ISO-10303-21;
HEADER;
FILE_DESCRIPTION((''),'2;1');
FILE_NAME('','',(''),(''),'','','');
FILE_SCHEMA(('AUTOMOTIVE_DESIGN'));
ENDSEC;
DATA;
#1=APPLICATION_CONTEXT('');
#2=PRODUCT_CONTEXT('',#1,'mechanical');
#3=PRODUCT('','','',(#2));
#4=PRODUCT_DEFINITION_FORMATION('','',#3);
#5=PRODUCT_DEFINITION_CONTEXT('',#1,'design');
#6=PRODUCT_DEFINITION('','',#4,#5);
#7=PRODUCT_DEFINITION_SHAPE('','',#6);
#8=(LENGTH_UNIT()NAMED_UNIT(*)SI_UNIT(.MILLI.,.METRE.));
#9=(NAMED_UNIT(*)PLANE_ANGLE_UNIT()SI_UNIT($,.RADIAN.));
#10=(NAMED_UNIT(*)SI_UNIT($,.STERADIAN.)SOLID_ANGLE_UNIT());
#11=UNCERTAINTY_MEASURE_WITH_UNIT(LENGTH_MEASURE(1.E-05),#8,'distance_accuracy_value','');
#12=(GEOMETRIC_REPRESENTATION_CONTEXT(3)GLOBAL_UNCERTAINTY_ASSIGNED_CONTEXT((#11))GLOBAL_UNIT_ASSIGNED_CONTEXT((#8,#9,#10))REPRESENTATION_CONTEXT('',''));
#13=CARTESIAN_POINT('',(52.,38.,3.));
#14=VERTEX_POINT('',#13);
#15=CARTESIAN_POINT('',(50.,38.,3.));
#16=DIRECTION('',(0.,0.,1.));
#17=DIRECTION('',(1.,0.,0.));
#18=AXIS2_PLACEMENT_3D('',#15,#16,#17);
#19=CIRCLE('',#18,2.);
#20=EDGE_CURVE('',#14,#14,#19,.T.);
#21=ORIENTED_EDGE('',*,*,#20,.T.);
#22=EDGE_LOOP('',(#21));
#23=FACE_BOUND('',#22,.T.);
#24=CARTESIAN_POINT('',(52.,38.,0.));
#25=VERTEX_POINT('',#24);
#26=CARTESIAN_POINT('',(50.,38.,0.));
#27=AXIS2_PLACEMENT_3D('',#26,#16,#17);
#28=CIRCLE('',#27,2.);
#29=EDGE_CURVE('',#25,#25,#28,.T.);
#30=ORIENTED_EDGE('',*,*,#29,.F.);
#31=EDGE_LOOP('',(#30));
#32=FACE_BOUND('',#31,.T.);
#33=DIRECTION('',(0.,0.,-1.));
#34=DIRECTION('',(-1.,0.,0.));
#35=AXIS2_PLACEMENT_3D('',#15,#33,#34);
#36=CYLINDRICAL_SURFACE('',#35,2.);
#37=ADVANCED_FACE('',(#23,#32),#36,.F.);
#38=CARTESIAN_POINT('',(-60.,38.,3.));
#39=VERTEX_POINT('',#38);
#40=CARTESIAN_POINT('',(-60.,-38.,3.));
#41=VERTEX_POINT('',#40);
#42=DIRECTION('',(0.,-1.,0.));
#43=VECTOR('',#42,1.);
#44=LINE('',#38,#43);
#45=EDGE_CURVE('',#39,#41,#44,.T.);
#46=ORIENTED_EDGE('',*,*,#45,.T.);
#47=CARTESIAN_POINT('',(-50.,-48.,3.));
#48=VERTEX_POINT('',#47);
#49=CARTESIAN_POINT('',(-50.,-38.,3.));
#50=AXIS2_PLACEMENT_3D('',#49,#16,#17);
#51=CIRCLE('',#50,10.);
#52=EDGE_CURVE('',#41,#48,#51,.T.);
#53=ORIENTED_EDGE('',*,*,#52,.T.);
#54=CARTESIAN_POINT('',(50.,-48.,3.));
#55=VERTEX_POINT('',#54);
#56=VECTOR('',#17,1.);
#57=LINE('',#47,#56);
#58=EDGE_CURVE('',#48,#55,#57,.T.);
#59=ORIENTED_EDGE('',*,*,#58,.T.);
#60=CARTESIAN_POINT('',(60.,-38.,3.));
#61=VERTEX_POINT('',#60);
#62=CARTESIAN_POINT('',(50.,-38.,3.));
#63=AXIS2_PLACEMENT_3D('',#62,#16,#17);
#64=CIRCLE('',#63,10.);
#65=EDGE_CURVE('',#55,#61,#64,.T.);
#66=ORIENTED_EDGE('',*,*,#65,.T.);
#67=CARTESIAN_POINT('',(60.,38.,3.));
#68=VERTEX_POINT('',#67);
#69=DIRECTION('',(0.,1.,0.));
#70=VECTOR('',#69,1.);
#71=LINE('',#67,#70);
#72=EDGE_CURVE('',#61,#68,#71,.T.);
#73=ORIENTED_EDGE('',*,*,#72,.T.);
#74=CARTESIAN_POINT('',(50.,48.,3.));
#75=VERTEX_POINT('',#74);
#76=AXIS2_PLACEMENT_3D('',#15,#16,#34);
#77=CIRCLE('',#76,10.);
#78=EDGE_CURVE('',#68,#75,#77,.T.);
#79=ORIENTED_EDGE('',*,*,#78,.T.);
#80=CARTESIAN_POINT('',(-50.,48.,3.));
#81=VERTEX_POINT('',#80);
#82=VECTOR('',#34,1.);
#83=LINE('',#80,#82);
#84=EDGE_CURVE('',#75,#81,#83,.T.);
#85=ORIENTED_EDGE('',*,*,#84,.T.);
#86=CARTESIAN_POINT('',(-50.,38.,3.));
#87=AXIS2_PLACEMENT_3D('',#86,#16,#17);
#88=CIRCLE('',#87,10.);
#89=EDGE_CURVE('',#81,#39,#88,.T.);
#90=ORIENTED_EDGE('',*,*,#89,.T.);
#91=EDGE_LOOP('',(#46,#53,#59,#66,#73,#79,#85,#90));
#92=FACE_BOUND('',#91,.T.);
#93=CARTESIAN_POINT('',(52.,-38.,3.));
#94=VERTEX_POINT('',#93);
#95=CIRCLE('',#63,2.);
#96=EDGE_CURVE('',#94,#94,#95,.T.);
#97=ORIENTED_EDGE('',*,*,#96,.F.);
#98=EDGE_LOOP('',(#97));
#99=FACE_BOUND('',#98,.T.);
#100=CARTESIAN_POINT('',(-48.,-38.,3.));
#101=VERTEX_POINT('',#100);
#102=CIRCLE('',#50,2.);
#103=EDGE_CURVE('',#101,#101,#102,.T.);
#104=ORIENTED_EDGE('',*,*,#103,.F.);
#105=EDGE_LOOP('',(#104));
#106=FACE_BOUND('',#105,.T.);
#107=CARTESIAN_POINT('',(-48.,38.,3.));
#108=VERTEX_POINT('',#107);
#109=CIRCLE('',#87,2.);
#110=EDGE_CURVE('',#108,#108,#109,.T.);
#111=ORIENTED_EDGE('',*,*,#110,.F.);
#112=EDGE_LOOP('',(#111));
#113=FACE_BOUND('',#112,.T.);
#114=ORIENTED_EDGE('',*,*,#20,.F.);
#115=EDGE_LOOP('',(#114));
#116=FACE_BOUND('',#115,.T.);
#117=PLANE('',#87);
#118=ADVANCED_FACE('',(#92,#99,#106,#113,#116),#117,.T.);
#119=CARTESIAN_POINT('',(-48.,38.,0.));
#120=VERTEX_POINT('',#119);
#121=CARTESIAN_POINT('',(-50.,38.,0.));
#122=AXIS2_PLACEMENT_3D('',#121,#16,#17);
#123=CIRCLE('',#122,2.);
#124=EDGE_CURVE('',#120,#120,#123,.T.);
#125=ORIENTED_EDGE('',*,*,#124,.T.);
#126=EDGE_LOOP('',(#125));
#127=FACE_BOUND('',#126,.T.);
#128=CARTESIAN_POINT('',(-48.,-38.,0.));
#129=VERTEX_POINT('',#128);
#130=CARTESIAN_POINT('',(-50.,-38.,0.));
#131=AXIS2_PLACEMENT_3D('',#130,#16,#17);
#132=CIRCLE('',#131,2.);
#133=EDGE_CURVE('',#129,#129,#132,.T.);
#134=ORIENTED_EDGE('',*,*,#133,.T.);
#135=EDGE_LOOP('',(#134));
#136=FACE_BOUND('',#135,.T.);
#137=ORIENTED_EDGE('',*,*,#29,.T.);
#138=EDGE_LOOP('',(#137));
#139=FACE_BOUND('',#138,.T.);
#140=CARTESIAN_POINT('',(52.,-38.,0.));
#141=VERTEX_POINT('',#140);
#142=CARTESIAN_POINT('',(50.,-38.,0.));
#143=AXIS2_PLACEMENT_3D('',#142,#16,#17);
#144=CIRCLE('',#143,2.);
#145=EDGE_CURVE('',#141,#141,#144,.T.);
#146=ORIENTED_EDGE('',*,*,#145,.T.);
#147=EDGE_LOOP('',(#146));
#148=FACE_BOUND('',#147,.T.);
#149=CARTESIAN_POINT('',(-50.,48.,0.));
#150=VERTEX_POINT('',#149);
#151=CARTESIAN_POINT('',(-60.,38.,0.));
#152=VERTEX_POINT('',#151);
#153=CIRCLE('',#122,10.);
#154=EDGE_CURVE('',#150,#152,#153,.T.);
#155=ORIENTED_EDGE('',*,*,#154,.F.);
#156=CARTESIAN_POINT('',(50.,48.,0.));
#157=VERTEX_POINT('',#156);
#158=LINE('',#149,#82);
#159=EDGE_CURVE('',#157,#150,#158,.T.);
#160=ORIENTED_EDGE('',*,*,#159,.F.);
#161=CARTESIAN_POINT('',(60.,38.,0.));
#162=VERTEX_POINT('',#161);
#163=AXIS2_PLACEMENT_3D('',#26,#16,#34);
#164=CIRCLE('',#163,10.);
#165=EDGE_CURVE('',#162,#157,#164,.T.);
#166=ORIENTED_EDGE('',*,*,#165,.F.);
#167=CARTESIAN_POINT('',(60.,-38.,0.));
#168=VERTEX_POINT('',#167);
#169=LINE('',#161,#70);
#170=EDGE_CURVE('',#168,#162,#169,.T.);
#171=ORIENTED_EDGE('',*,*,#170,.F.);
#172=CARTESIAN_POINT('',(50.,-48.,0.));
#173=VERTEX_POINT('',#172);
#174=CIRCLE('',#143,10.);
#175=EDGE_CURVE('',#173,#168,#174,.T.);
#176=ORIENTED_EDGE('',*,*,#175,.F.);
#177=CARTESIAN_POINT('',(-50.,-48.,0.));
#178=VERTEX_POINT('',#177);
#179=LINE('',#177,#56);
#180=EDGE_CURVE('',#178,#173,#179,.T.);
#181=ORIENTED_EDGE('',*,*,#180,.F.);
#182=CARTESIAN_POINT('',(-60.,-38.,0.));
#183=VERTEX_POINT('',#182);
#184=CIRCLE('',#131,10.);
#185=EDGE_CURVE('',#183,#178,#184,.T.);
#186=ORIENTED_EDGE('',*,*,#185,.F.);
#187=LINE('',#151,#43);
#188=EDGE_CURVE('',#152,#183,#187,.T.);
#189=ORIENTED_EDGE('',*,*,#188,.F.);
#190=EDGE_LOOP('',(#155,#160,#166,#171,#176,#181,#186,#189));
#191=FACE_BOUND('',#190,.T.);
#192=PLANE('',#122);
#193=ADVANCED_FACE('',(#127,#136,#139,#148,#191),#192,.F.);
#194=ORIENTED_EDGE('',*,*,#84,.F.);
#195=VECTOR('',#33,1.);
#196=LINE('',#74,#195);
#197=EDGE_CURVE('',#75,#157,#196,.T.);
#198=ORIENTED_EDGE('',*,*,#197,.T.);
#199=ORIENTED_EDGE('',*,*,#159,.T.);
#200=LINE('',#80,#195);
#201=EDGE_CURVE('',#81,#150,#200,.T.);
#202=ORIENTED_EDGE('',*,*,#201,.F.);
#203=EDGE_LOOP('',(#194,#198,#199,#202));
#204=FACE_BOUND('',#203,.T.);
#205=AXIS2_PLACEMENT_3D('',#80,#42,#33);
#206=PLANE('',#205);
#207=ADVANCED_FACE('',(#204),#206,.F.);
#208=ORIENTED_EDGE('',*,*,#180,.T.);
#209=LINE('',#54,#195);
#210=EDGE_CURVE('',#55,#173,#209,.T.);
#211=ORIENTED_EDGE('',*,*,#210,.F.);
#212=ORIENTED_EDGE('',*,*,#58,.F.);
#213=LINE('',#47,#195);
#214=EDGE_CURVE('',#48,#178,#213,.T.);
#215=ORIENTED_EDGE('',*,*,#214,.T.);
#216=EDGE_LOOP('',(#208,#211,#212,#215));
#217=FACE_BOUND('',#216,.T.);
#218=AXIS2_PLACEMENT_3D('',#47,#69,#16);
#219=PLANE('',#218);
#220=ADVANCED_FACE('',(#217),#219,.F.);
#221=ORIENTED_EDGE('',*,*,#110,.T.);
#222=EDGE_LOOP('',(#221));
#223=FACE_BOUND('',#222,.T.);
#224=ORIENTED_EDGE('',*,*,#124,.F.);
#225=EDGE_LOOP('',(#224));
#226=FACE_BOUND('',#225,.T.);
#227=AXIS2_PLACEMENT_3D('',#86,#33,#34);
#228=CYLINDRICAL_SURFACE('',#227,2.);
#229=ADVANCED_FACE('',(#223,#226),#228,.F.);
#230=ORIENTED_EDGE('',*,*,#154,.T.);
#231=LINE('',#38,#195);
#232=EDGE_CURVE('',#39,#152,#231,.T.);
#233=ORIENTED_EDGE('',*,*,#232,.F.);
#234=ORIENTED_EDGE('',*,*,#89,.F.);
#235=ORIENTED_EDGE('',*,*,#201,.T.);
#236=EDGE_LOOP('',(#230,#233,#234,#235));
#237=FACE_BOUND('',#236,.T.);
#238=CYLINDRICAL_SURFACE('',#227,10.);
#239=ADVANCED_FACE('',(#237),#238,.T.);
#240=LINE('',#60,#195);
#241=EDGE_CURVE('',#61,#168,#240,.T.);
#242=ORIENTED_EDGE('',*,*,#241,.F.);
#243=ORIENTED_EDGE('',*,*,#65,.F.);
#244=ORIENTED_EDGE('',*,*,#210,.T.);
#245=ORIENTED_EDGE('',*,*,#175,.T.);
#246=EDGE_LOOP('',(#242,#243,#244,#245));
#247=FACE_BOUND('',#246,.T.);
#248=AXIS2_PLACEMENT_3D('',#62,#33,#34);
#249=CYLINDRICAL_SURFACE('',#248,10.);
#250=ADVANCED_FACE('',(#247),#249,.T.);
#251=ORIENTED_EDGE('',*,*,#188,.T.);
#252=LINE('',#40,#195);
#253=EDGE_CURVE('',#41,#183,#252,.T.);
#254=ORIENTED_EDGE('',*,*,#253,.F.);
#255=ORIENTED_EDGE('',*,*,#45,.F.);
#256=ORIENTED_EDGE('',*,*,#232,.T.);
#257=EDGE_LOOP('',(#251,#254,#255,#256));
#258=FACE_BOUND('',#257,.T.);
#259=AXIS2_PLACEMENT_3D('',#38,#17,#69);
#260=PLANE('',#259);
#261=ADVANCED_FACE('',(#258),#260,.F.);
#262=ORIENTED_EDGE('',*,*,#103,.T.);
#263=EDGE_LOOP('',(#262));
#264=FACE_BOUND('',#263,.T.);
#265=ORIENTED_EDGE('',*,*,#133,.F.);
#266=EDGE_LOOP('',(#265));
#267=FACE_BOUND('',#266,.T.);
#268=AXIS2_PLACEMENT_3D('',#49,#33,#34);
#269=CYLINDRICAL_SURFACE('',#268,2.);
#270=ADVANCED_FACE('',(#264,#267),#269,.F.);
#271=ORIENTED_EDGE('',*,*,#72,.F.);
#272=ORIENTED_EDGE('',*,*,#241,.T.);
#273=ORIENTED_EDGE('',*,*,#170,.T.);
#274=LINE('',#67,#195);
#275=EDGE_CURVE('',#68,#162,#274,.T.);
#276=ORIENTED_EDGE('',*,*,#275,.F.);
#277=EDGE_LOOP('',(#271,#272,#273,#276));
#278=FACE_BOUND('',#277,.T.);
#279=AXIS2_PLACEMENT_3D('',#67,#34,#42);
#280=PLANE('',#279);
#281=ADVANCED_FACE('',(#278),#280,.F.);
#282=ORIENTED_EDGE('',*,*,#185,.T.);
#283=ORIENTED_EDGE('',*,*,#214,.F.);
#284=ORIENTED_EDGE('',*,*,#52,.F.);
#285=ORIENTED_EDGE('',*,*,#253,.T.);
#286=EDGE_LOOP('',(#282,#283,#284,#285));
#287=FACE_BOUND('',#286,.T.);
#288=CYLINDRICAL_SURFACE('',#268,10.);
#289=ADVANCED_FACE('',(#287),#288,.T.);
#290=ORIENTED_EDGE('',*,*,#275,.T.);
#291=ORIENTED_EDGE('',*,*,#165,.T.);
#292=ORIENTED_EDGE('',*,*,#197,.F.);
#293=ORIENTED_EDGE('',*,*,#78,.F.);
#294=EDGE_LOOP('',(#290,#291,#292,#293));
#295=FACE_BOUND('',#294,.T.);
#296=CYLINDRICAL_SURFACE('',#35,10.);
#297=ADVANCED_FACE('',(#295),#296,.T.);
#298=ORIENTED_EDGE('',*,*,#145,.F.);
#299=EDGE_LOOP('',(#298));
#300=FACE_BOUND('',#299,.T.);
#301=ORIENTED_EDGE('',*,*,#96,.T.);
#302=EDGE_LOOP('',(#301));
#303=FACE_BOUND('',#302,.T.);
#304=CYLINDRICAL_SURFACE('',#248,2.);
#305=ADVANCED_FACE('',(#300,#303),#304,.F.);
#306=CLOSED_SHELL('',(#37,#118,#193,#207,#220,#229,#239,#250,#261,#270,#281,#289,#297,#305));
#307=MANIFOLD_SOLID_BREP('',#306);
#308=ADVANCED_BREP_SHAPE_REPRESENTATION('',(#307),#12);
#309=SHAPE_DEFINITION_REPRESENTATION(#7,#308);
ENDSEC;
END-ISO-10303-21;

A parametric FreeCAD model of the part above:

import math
import FreeCAD as App
import Part
import Sketcher
Q = App.Units.Quantity

doc = App.newDocument("Part")
body = doc.addObject("PartDesign::Body", "Body")

# Sketch on XY plane
sketch1 = body.newObject("Sketcher::SketchObject", "Sketch")
sketch1.AttachmentSupport = (doc.getObject("XY_Plane"), [""])
sketch1.MapMode = "FlatFace"
sketch1.addGeometry([
    Part.LineSegment(App.Vector(50, 48, 0), App.Vector(-50, 48, 0)),  # 0
    Part.ArcOfCircle(Part.Circle(App.Vector(-50, 38, 0), App.Vector(0, 0, 1), 10), math.radians(90), math.radians(180)),  # 1
    Part.LineSegment(App.Vector(-60, 38, 0), App.Vector(-60, -38, 0)),  # 2
    Part.ArcOfCircle(Part.Circle(App.Vector(-50, -38, 0), App.Vector(0, 0, 1), 10), math.radians(180), math.radians(270)),  # 3
    Part.LineSegment(App.Vector(-50, -48, 0), App.Vector(50, -48, 0)),  # 4
    Part.ArcOfCircle(Part.Circle(App.Vector(50, -38, 0), App.Vector(0, 0, 1), 10), math.radians(-90), math.radians(0)),  # 5
    Part.LineSegment(App.Vector(60, -38, 0), App.Vector(60, 38, 0)),  # 6
    Part.ArcOfCircle(Part.Circle(App.Vector(50, 38, 0), App.Vector(0, 0, 1), 10), math.radians(0), math.radians(90)),  # 7
    Part.Circle(App.Vector(50, -38, 0), App.Vector(0, 0, 1), 2),  # 8
    Part.Circle(App.Vector(-50, -38, 0), App.Vector(0, 0, 1), 2),  # 9
    Part.Circle(App.Vector(50, 38, 0), App.Vector(0, 0, 1), 2),  # 10
    Part.Circle(App.Vector(-50, 38, 0), App.Vector(0, 0, 1), 2),  # 11
], False)
sketch1.addConstraint([
    Sketcher.Constraint("Tangent", 0, 2, 1, 1),
    Sketcher.Constraint("Tangent", 1, 2, 2, 1),
    Sketcher.Constraint("Tangent", 2, 2, 3, 1),
    Sketcher.Constraint("Tangent", 3, 2, 4, 1),
    Sketcher.Constraint("Tangent", 4, 2, 5, 1),
    Sketcher.Constraint("Tangent", 5, 2, 6, 1),
    Sketcher.Constraint("Tangent", 6, 2, 7, 1),
    Sketcher.Constraint("Tangent", 7, 2, 0, 1),
    Sketcher.Constraint("Horizontal", 0),
    Sketcher.Constraint("Vertical", 2),
    Sketcher.Constraint("Horizontal", 4),
    Sketcher.Constraint("Vertical", 6),
    Sketcher.Constraint("Coincident", 8, 3, 5, 3),
    Sketcher.Constraint("Coincident", 9, 3, 3, 3),
    Sketcher.Constraint("Coincident", 10, 3, 7, 3),
    Sketcher.Constraint("Coincident", 11, 3, 1, 3),
    Sketcher.Constraint("Equal", 1, 3),
    Sketcher.Constraint("Equal", 3, 5),
    Sketcher.Constraint("Equal", 5, 7),
    Sketcher.Constraint("Equal", 8, 9),
    Sketcher.Constraint("Equal", 9, 10),
    Sketcher.Constraint("Equal", 10, 11),
    Sketcher.Constraint("Symmetric", 1, 3, 5, 3, -1, 1),
    Sketcher.Constraint("Diameter", 8, Q("4 mm")),
    Sketcher.Constraint("Radius", 1, Q("10 mm")),
    Sketcher.Constraint("DistanceX", 0, 2, 0, 1, Q("100 mm")),
    Sketcher.Constraint("DistanceY", 2, 2, 2, 1, Q("76 mm")),
])
pad1 = body.newObject("PartDesign::Pad", "Pad")
pad1.Profile = sketch1
pad1.Length = 3

doc.recompute()
